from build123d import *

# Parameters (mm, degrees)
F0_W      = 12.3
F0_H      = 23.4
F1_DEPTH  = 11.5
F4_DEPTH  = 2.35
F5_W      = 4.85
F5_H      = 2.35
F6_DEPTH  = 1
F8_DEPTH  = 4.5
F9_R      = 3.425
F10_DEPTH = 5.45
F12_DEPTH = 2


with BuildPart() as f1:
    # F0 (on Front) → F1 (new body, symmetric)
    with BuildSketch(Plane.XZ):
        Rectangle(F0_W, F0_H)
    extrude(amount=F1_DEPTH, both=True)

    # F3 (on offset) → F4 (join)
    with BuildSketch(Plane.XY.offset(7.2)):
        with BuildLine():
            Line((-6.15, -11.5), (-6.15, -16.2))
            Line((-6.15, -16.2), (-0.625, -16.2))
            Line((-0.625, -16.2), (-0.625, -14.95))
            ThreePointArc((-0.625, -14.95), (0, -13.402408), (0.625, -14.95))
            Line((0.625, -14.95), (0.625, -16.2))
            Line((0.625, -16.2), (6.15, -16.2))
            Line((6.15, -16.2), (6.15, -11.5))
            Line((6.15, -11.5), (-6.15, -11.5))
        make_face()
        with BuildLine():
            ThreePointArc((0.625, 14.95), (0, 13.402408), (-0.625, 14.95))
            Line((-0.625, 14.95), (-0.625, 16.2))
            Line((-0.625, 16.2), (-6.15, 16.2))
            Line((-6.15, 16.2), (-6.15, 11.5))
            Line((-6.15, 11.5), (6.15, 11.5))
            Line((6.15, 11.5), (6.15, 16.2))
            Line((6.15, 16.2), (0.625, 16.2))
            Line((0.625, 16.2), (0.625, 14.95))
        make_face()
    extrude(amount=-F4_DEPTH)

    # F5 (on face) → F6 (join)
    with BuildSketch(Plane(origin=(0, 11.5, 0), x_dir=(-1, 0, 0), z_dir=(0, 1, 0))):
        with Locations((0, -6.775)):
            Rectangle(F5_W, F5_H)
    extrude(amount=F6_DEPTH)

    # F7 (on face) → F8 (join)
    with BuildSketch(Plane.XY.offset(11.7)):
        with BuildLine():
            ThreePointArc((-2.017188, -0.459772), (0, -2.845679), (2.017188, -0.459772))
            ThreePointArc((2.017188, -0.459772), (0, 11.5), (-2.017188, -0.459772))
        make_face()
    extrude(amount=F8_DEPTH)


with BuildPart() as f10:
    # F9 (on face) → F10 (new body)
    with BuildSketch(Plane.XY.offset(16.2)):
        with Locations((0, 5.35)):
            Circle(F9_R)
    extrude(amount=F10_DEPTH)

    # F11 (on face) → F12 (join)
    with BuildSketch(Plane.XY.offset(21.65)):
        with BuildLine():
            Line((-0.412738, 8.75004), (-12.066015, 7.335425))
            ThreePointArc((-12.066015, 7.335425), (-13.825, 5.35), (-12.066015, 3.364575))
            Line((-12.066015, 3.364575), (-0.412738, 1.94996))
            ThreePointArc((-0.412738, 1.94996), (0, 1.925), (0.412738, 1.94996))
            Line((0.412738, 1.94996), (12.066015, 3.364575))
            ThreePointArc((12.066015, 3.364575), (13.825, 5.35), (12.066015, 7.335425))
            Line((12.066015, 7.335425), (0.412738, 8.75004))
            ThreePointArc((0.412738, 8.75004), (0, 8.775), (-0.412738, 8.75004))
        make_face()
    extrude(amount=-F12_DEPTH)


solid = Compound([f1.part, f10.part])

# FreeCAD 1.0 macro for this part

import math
import FreeCAD as App
import Part
import Sketcher

V = App.Vector

doc = App.newDocument("Part")
body = doc.addObject("PartDesign::Body", "Body")

# Sketch on XZ plane
sketch1 = body.newObject("Sketcher::SketchObject", "Sketch")
sketch1.AttachmentSupport = (doc.getObject("XZ_Plane"), [""])
sketch1.MapMode = "FlatFace"
sketch1.addGeometry([
    Part.LineSegment(V(-6.15, 11.7, 0), V(-6.15, -11.7, 0)),
    Part.LineSegment(V(-6.15, -11.7, 0), V(6.15, -11.7, 0)),
    Part.LineSegment(V(6.15, -11.7, 0), V(6.15, 11.7, 0)),
    Part.LineSegment(V(6.15, 11.7, 0), V(-6.15, 11.7, 0)),
], False)
sketch1.addConstraint([
    Sketcher.Constraint("Coincident", 0, 2, 1, 1),
    Sketcher.Constraint("Coincident", 1, 2, 2, 1),
    Sketcher.Constraint("Coincident", 2, 2, 3, 1),
    Sketcher.Constraint("Coincident", 3, 2, 0, 1),
    Sketcher.Constraint("Vertical", 0),
    Sketcher.Constraint("Horizontal", 1),
    Sketcher.Constraint("Vertical", 2),
    Sketcher.Constraint("Horizontal", 3),
    Sketcher.Constraint("Symmetric", 0, 2, 2, 2, -1, 1),
    Sketcher.Constraint("DistanceX", 1, 1, 1, 2, 12.3),
    Sketcher.Constraint("DistanceY", 0, 2, 0, 1, 23.4),
])
pad1 = body.newObject("PartDesign::Pad", "Pad")
pad1.Profile = sketch1
pad1.Length = 23
pad1.Midplane = True

# Sketch on XY plane
sketch2 = body.newObject("Sketcher::SketchObject", "Sketch001")
sketch2.AttachmentSupport = (doc.getObject("XY_Plane"), [""])
sketch2.MapMode = "FlatFace"
sketch2.AttachmentOffset = App.Placement(V(0, 0, 7.2), App.Rotation())
sketch2.addGeometry([
    Part.LineSegment(V(-6.15, -11.5, 0), V(-6.15, -16.2, 0)),  # 0
    Part.LineSegment(V(-6.15, -16.2, 0), V(-0.625, -16.2, 0)),  # 1
    Part.LineSegment(V(-0.625, -16.2, 0), V(-0.625, -14.95, 0)),  # 2
    Part.ArcOfCircle(Part.Circle(V(0, -14.302408, 0), V(0, 0, 1), 0.9), math.radians(-46.017045), math.radians(226.017045)),  # 3
    Part.LineSegment(V(0.625, -14.95, 0), V(0.625, -16.2, 0)),  # 4
    Part.LineSegment(V(0.625, -16.2, 0), V(6.15, -16.2, 0)),  # 5
    Part.LineSegment(V(6.15, -16.2, 0), V(6.15, -11.5, 0)),  # 6
    Part.LineSegment(V(6.15, -11.5, 0), V(-6.15, -11.5, 0)),  # 7
    Part.ArcOfCircle(Part.Circle(V(0, 14.302408, 0), V(0, 0, 1), 0.9), math.radians(133.982955), math.radians(406.017045)),  # 8
    Part.LineSegment(V(-0.625, 14.95, 0), V(-0.625, 16.2, 0)),  # 9
    Part.LineSegment(V(-0.625, 16.2, 0), V(-6.15, 16.2, 0)),  # 10
    Part.LineSegment(V(-6.15, 16.2, 0), V(-6.15, 11.5, 0)),  # 11
    Part.LineSegment(V(-6.15, 11.5, 0), V(6.15, 11.5, 0)),  # 12
    Part.LineSegment(V(6.15, 11.5, 0), V(6.15, 16.2, 0)),  # 13
    Part.LineSegment(V(6.15, 16.2, 0), V(0.625, 16.2, 0)),  # 14
    Part.LineSegment(V(0.625, 16.2, 0), V(0.625, 14.95, 0)),  # 15
], False)
sketch2.addConstraint([
    Sketcher.Constraint("Coincident", 0, 2, 1, 1),
    Sketcher.Constraint("Coincident", 1, 2, 2, 1),
    Sketcher.Constraint("Coincident", 2, 2, 3, 2),
    Sketcher.Constraint("Coincident", 3, 1, 4, 1),
    Sketcher.Constraint("Coincident", 4, 2, 5, 1),
    Sketcher.Constraint("Coincident", 5, 2, 6, 1),
    Sketcher.Constraint("Coincident", 6, 2, 7, 1),
    Sketcher.Constraint("Coincident", 7, 2, 0, 1),
    Sketcher.Constraint("Coincident", 8, 1, 9, 1),
    Sketcher.Constraint("Coincident", 9, 2, 10, 1),
    Sketcher.Constraint("Coincident", 10, 2, 11, 1),
    Sketcher.Constraint("Coincident", 11, 2, 12, 1),
    Sketcher.Constraint("Coincident", 12, 2, 13, 1),
    Sketcher.Constraint("Coincident", 13, 2, 14, 1),
    Sketcher.Constraint("Coincident", 14, 2, 15, 1),
    Sketcher.Constraint("Coincident", 15, 2, 8, 2),
    Sketcher.Constraint("Vertical", 0),
    Sketcher.Constraint("Horizontal", 1),
    Sketcher.Constraint("Vertical", 2),
    Sketcher.Constraint("Vertical", 4),
    Sketcher.Constraint("Horizontal", 5),
    Sketcher.Constraint("Vertical", 6),
    Sketcher.Constraint("Horizontal", 7),
    Sketcher.Constraint("Vertical", 9),
    Sketcher.Constraint("Horizontal", 10),
    Sketcher.Constraint("Vertical", 11),
    Sketcher.Constraint("Horizontal", 12),
    Sketcher.Constraint("Vertical", 13),
    Sketcher.Constraint("Horizontal", 14),
    Sketcher.Constraint("Vertical", 15),
    Sketcher.Constraint("Equal", 3, 8),
    Sketcher.Constraint("Symmetric", 3, 3, 8, 3, -1, 1),
    Sketcher.Constraint("Symmetric", 4, 2, 9, 2, -1, 1),
    Sketcher.Constraint("Symmetric", 6, 2, 11, 2, -1, 1),
    Sketcher.Constraint("Symmetric", 0, 2, 13, 2, -1, 1),
    Sketcher.Constraint("Symmetric", 2, 2, 3, 1, -2),
    Sketcher.Constraint("Symmetric", 0, 2, 5, 2, -2),
    Sketcher.Constraint("Horizontal", 8, 1, 15, 2),
    Sketcher.Constraint("Radius", 3, 0.9),
    Sketcher.Constraint("DistanceX", 7, 2, 7, 1, 12.3),
    Sketcher.Constraint("DistanceY", 0, 2, 0, 1, 4.7),
    Sketcher.Constraint("DistanceY", 7, 2, 11, 2, 23.0),
    Sketcher.Constraint("DistanceY", 2, 1, 2, 2, 1.25),
    Sketcher.Constraint("DistanceX", 1, 1, 1, 2, 5.525),
])
pad2 = body.newObject("PartDesign::Pad", "Pad001")
pad2.Profile = sketch2
pad2.Length = 2.35
pad2.Reversed = True

# Sketch on XZ plane
sketch3 = body.newObject("Sketcher::SketchObject", "Sketch002")
sketch3.AttachmentSupport = (doc.getObject("XZ_Plane"), [""])
sketch3.MapMode = "FlatFace"
sketch3.AttachmentOffset = App.Placement(V(0, 0, -11.5), App.Rotation())
sketch3.addGeometry([
    Part.LineSegment(V(2.425, -5.6, 0), V(2.425, -7.95, 0)),
    Part.LineSegment(V(2.425, -7.95, 0), V(-2.425, -7.95, 0)),
    Part.LineSegment(V(-2.425, -7.95, 0), V(-2.425, -5.6, 0)),
    Part.LineSegment(V(-2.425, -5.6, 0), V(2.425, -5.6, 0)),
], False)
sketch3.addConstraint([
    Sketcher.Constraint("Coincident", 0, 2, 1, 1),
    Sketcher.Constraint("Coincident", 1, 2, 2, 1),
    Sketcher.Constraint("Coincident", 2, 2, 3, 1),
    Sketcher.Constraint("Coincident", 3, 2, 0, 1),
    Sketcher.Constraint("Vertical", 0),
    Sketcher.Constraint("Horizontal", 1),
    Sketcher.Constraint("Vertical", 2),
    Sketcher.Constraint("Horizontal", 3),
    Sketcher.Constraint("DistanceX", 1, 2, 1, 1, 4.85),
    Sketcher.Constraint("DistanceY", 0, 2, 0, 1, 2.35),
    Sketcher.Constraint("DistanceY", 2, 2, -1, 1, 5.6),
    Sketcher.Constraint("DistanceX", -1, 1, 0, 2, 2.425),
])
pad3 = body.newObject("PartDesign::Pad", "Pad002")
pad3.Profile = sketch3
pad3.Length = 1
pad3.Reversed = True

# Sketch on XY plane
sketch4 = body.newObject("Sketcher::SketchObject", "Sketch003")
sketch4.AttachmentSupport = (doc.getObject("XY_Plane"), [""])
sketch4.MapMode = "FlatFace"
sketch4.AttachmentOffset = App.Placement(V(0, 0, 11.7), App.Rotation())
sketch4.addGeometry([
    Part.ArcOfCircle(Part.Circle(V(0, -0.8, 0), V(0, 0, 1), 2.045679), math.radians(170.42634), math.radians(369.57366)),
    Part.ArcOfCircle(Part.Circle(V(0, 5.35, 0), V(0, 0, 1), 6.15), math.radians(-70.85269), math.radians(250.85269)),
], False)
sketch4.addConstraint([
    Sketcher.Constraint("Coincident", 0, 1, 1, 2),
    Sketcher.Constraint("Coincident", 1, 1, 0, 2),
    Sketcher.Constraint("Symmetric", 0, 1, 1, 1, -2),
    Sketcher.Constraint("Radius", 1, 6.15),
    Sketcher.Constraint("DistanceY", 0, 3, -1, 1, 0.8),
    Sketcher.Constraint("DistanceY", -1, 1, 1, 3, 5.35),
    Sketcher.Constraint("Radius", 0, 2.045679),
])
pad4 = body.newObject("PartDesign::Pad", "Pad003")
pad4.Profile = sketch4
pad4.Length = 4.5
body2 = doc.addObject("PartDesign::Body", "Body001")

# Sketch on XY plane
sketch5 = body2.newObject("Sketcher::SketchObject", "Sketch004")
sketch5.AttachmentSupport = (doc.getObject("XY_Plane001"), [""])
sketch5.MapMode = "FlatFace"
sketch5.AttachmentOffset = App.Placement(V(0, 0, 16.2), App.Rotation())
sketch5.addGeometry(Part.Circle(V(0, 5.35, 0), V(0, 0, 1), 3.425), False)
sketch5.addConstraint([
    Sketcher.Constraint("PointOnObject", 0, 3, -2),
    Sketcher.Constraint("Diameter", 0, 6.85),
    Sketcher.Constraint("DistanceY", -1, 1, 0, 3, 5.35),
])
pad5 = body2.newObject("PartDesign::Pad", "Pad004")
pad5.Profile = sketch5
pad5.Length = 5.45

# Sketch on XY plane
sketch6 = body2.newObject("Sketcher::SketchObject", "Sketch005")
sketch6.AttachmentSupport = (doc.getObject("XY_Plane001"), [""])
sketch6.MapMode = "FlatFace"
sketch6.AttachmentOffset = App.Placement(V(0, 0, 21.65), App.Rotation())
sketch6.addGeometry([
    Part.LineSegment(V(-0.412738, 8.75004, 0), V(-12.066015, 7.335425, 0)),  # 0
    Part.ArcOfCircle(Part.Circle(V(-11.825, 5.35, 0), V(0, 0, 1), 2), math.radians(96.921398), math.radians(263.078602)),  # 1
    Part.LineSegment(V(-12.066015, 3.364575, 0), V(-0.412738, 1.94996, 0)),  # 2
    Part.ArcOfCircle(Part.Circle(V(0, 5.349993, 0), V(0, 0, 1), 3.424993), math.radians(-96.921403), math.radians(-83.078597)),  # 3
    Part.LineSegment(V(0.412738, 1.94996, 0), V(12.066015, 3.364575, 0)),  # 4
    Part.ArcOfCircle(Part.Circle(V(11.825, 5.35, 0), V(0, 0, 1), 2), math.radians(-83.078602), math.radians(83.078602)),  # 5
    Part.LineSegment(V(12.066015, 7.335425, 0), V(0.412738, 8.75004, 0)),  # 6
    Part.ArcOfCircle(Part.Circle(V(0, 5.350007, 0), V(0, 0, 1), 3.424993), math.radians(83.078597), math.radians(96.921403)),  # 7
], False)
sketch6.addConstraint([
    Sketcher.Constraint("Tangent", 0, 2, 1, 1),
    Sketcher.Constraint("Tangent", 1, 2, 2, 1),
    Sketcher.Constraint("Tangent", 2, 2, 3, 1),
    Sketcher.Constraint("Tangent", 3, 2, 4, 1),
    Sketcher.Constraint("Tangent", 4, 2, 5, 1),
    Sketcher.Constraint("Tangent", 5, 2, 6, 1),
    Sketcher.Constraint("Tangent", 6, 2, 7, 1),
    Sketcher.Constraint("Tangent", 7, 2, 0, 1),
    Sketcher.Constraint("Equal", 1, 5),
    Sketcher.Constraint("Equal", 3, 7),
    Sketcher.Constraint("Symmetric", 1, 3, 5, 3, -2),
    Sketcher.Constraint("PointOnObject", 3, 3, -2),
    Sketcher.Constraint("PointOnObject", 7, 3, -2),
    Sketcher.Constraint("Parallel", 0, 4),
    Sketcher.Constraint("Radius", 1, 2.0),
    Sketcher.Constraint("DistanceY", -1, 1, 1, 3, 5.35),
    Sketcher.Constraint("DistanceX", 1, 3, 5, 3, 23.65),
    Sketcher.Constraint("Radius", 3, 3.424993),
    Sketcher.Constraint("DistanceY", -1, 1, 2, 2, 1.94996),
])
pad6 = body2.newObject("PartDesign::Pad", "Pad005")
pad6.Profile = sketch6
pad6.Length = 2
pad6.Reversed = True

doc.recompute()
